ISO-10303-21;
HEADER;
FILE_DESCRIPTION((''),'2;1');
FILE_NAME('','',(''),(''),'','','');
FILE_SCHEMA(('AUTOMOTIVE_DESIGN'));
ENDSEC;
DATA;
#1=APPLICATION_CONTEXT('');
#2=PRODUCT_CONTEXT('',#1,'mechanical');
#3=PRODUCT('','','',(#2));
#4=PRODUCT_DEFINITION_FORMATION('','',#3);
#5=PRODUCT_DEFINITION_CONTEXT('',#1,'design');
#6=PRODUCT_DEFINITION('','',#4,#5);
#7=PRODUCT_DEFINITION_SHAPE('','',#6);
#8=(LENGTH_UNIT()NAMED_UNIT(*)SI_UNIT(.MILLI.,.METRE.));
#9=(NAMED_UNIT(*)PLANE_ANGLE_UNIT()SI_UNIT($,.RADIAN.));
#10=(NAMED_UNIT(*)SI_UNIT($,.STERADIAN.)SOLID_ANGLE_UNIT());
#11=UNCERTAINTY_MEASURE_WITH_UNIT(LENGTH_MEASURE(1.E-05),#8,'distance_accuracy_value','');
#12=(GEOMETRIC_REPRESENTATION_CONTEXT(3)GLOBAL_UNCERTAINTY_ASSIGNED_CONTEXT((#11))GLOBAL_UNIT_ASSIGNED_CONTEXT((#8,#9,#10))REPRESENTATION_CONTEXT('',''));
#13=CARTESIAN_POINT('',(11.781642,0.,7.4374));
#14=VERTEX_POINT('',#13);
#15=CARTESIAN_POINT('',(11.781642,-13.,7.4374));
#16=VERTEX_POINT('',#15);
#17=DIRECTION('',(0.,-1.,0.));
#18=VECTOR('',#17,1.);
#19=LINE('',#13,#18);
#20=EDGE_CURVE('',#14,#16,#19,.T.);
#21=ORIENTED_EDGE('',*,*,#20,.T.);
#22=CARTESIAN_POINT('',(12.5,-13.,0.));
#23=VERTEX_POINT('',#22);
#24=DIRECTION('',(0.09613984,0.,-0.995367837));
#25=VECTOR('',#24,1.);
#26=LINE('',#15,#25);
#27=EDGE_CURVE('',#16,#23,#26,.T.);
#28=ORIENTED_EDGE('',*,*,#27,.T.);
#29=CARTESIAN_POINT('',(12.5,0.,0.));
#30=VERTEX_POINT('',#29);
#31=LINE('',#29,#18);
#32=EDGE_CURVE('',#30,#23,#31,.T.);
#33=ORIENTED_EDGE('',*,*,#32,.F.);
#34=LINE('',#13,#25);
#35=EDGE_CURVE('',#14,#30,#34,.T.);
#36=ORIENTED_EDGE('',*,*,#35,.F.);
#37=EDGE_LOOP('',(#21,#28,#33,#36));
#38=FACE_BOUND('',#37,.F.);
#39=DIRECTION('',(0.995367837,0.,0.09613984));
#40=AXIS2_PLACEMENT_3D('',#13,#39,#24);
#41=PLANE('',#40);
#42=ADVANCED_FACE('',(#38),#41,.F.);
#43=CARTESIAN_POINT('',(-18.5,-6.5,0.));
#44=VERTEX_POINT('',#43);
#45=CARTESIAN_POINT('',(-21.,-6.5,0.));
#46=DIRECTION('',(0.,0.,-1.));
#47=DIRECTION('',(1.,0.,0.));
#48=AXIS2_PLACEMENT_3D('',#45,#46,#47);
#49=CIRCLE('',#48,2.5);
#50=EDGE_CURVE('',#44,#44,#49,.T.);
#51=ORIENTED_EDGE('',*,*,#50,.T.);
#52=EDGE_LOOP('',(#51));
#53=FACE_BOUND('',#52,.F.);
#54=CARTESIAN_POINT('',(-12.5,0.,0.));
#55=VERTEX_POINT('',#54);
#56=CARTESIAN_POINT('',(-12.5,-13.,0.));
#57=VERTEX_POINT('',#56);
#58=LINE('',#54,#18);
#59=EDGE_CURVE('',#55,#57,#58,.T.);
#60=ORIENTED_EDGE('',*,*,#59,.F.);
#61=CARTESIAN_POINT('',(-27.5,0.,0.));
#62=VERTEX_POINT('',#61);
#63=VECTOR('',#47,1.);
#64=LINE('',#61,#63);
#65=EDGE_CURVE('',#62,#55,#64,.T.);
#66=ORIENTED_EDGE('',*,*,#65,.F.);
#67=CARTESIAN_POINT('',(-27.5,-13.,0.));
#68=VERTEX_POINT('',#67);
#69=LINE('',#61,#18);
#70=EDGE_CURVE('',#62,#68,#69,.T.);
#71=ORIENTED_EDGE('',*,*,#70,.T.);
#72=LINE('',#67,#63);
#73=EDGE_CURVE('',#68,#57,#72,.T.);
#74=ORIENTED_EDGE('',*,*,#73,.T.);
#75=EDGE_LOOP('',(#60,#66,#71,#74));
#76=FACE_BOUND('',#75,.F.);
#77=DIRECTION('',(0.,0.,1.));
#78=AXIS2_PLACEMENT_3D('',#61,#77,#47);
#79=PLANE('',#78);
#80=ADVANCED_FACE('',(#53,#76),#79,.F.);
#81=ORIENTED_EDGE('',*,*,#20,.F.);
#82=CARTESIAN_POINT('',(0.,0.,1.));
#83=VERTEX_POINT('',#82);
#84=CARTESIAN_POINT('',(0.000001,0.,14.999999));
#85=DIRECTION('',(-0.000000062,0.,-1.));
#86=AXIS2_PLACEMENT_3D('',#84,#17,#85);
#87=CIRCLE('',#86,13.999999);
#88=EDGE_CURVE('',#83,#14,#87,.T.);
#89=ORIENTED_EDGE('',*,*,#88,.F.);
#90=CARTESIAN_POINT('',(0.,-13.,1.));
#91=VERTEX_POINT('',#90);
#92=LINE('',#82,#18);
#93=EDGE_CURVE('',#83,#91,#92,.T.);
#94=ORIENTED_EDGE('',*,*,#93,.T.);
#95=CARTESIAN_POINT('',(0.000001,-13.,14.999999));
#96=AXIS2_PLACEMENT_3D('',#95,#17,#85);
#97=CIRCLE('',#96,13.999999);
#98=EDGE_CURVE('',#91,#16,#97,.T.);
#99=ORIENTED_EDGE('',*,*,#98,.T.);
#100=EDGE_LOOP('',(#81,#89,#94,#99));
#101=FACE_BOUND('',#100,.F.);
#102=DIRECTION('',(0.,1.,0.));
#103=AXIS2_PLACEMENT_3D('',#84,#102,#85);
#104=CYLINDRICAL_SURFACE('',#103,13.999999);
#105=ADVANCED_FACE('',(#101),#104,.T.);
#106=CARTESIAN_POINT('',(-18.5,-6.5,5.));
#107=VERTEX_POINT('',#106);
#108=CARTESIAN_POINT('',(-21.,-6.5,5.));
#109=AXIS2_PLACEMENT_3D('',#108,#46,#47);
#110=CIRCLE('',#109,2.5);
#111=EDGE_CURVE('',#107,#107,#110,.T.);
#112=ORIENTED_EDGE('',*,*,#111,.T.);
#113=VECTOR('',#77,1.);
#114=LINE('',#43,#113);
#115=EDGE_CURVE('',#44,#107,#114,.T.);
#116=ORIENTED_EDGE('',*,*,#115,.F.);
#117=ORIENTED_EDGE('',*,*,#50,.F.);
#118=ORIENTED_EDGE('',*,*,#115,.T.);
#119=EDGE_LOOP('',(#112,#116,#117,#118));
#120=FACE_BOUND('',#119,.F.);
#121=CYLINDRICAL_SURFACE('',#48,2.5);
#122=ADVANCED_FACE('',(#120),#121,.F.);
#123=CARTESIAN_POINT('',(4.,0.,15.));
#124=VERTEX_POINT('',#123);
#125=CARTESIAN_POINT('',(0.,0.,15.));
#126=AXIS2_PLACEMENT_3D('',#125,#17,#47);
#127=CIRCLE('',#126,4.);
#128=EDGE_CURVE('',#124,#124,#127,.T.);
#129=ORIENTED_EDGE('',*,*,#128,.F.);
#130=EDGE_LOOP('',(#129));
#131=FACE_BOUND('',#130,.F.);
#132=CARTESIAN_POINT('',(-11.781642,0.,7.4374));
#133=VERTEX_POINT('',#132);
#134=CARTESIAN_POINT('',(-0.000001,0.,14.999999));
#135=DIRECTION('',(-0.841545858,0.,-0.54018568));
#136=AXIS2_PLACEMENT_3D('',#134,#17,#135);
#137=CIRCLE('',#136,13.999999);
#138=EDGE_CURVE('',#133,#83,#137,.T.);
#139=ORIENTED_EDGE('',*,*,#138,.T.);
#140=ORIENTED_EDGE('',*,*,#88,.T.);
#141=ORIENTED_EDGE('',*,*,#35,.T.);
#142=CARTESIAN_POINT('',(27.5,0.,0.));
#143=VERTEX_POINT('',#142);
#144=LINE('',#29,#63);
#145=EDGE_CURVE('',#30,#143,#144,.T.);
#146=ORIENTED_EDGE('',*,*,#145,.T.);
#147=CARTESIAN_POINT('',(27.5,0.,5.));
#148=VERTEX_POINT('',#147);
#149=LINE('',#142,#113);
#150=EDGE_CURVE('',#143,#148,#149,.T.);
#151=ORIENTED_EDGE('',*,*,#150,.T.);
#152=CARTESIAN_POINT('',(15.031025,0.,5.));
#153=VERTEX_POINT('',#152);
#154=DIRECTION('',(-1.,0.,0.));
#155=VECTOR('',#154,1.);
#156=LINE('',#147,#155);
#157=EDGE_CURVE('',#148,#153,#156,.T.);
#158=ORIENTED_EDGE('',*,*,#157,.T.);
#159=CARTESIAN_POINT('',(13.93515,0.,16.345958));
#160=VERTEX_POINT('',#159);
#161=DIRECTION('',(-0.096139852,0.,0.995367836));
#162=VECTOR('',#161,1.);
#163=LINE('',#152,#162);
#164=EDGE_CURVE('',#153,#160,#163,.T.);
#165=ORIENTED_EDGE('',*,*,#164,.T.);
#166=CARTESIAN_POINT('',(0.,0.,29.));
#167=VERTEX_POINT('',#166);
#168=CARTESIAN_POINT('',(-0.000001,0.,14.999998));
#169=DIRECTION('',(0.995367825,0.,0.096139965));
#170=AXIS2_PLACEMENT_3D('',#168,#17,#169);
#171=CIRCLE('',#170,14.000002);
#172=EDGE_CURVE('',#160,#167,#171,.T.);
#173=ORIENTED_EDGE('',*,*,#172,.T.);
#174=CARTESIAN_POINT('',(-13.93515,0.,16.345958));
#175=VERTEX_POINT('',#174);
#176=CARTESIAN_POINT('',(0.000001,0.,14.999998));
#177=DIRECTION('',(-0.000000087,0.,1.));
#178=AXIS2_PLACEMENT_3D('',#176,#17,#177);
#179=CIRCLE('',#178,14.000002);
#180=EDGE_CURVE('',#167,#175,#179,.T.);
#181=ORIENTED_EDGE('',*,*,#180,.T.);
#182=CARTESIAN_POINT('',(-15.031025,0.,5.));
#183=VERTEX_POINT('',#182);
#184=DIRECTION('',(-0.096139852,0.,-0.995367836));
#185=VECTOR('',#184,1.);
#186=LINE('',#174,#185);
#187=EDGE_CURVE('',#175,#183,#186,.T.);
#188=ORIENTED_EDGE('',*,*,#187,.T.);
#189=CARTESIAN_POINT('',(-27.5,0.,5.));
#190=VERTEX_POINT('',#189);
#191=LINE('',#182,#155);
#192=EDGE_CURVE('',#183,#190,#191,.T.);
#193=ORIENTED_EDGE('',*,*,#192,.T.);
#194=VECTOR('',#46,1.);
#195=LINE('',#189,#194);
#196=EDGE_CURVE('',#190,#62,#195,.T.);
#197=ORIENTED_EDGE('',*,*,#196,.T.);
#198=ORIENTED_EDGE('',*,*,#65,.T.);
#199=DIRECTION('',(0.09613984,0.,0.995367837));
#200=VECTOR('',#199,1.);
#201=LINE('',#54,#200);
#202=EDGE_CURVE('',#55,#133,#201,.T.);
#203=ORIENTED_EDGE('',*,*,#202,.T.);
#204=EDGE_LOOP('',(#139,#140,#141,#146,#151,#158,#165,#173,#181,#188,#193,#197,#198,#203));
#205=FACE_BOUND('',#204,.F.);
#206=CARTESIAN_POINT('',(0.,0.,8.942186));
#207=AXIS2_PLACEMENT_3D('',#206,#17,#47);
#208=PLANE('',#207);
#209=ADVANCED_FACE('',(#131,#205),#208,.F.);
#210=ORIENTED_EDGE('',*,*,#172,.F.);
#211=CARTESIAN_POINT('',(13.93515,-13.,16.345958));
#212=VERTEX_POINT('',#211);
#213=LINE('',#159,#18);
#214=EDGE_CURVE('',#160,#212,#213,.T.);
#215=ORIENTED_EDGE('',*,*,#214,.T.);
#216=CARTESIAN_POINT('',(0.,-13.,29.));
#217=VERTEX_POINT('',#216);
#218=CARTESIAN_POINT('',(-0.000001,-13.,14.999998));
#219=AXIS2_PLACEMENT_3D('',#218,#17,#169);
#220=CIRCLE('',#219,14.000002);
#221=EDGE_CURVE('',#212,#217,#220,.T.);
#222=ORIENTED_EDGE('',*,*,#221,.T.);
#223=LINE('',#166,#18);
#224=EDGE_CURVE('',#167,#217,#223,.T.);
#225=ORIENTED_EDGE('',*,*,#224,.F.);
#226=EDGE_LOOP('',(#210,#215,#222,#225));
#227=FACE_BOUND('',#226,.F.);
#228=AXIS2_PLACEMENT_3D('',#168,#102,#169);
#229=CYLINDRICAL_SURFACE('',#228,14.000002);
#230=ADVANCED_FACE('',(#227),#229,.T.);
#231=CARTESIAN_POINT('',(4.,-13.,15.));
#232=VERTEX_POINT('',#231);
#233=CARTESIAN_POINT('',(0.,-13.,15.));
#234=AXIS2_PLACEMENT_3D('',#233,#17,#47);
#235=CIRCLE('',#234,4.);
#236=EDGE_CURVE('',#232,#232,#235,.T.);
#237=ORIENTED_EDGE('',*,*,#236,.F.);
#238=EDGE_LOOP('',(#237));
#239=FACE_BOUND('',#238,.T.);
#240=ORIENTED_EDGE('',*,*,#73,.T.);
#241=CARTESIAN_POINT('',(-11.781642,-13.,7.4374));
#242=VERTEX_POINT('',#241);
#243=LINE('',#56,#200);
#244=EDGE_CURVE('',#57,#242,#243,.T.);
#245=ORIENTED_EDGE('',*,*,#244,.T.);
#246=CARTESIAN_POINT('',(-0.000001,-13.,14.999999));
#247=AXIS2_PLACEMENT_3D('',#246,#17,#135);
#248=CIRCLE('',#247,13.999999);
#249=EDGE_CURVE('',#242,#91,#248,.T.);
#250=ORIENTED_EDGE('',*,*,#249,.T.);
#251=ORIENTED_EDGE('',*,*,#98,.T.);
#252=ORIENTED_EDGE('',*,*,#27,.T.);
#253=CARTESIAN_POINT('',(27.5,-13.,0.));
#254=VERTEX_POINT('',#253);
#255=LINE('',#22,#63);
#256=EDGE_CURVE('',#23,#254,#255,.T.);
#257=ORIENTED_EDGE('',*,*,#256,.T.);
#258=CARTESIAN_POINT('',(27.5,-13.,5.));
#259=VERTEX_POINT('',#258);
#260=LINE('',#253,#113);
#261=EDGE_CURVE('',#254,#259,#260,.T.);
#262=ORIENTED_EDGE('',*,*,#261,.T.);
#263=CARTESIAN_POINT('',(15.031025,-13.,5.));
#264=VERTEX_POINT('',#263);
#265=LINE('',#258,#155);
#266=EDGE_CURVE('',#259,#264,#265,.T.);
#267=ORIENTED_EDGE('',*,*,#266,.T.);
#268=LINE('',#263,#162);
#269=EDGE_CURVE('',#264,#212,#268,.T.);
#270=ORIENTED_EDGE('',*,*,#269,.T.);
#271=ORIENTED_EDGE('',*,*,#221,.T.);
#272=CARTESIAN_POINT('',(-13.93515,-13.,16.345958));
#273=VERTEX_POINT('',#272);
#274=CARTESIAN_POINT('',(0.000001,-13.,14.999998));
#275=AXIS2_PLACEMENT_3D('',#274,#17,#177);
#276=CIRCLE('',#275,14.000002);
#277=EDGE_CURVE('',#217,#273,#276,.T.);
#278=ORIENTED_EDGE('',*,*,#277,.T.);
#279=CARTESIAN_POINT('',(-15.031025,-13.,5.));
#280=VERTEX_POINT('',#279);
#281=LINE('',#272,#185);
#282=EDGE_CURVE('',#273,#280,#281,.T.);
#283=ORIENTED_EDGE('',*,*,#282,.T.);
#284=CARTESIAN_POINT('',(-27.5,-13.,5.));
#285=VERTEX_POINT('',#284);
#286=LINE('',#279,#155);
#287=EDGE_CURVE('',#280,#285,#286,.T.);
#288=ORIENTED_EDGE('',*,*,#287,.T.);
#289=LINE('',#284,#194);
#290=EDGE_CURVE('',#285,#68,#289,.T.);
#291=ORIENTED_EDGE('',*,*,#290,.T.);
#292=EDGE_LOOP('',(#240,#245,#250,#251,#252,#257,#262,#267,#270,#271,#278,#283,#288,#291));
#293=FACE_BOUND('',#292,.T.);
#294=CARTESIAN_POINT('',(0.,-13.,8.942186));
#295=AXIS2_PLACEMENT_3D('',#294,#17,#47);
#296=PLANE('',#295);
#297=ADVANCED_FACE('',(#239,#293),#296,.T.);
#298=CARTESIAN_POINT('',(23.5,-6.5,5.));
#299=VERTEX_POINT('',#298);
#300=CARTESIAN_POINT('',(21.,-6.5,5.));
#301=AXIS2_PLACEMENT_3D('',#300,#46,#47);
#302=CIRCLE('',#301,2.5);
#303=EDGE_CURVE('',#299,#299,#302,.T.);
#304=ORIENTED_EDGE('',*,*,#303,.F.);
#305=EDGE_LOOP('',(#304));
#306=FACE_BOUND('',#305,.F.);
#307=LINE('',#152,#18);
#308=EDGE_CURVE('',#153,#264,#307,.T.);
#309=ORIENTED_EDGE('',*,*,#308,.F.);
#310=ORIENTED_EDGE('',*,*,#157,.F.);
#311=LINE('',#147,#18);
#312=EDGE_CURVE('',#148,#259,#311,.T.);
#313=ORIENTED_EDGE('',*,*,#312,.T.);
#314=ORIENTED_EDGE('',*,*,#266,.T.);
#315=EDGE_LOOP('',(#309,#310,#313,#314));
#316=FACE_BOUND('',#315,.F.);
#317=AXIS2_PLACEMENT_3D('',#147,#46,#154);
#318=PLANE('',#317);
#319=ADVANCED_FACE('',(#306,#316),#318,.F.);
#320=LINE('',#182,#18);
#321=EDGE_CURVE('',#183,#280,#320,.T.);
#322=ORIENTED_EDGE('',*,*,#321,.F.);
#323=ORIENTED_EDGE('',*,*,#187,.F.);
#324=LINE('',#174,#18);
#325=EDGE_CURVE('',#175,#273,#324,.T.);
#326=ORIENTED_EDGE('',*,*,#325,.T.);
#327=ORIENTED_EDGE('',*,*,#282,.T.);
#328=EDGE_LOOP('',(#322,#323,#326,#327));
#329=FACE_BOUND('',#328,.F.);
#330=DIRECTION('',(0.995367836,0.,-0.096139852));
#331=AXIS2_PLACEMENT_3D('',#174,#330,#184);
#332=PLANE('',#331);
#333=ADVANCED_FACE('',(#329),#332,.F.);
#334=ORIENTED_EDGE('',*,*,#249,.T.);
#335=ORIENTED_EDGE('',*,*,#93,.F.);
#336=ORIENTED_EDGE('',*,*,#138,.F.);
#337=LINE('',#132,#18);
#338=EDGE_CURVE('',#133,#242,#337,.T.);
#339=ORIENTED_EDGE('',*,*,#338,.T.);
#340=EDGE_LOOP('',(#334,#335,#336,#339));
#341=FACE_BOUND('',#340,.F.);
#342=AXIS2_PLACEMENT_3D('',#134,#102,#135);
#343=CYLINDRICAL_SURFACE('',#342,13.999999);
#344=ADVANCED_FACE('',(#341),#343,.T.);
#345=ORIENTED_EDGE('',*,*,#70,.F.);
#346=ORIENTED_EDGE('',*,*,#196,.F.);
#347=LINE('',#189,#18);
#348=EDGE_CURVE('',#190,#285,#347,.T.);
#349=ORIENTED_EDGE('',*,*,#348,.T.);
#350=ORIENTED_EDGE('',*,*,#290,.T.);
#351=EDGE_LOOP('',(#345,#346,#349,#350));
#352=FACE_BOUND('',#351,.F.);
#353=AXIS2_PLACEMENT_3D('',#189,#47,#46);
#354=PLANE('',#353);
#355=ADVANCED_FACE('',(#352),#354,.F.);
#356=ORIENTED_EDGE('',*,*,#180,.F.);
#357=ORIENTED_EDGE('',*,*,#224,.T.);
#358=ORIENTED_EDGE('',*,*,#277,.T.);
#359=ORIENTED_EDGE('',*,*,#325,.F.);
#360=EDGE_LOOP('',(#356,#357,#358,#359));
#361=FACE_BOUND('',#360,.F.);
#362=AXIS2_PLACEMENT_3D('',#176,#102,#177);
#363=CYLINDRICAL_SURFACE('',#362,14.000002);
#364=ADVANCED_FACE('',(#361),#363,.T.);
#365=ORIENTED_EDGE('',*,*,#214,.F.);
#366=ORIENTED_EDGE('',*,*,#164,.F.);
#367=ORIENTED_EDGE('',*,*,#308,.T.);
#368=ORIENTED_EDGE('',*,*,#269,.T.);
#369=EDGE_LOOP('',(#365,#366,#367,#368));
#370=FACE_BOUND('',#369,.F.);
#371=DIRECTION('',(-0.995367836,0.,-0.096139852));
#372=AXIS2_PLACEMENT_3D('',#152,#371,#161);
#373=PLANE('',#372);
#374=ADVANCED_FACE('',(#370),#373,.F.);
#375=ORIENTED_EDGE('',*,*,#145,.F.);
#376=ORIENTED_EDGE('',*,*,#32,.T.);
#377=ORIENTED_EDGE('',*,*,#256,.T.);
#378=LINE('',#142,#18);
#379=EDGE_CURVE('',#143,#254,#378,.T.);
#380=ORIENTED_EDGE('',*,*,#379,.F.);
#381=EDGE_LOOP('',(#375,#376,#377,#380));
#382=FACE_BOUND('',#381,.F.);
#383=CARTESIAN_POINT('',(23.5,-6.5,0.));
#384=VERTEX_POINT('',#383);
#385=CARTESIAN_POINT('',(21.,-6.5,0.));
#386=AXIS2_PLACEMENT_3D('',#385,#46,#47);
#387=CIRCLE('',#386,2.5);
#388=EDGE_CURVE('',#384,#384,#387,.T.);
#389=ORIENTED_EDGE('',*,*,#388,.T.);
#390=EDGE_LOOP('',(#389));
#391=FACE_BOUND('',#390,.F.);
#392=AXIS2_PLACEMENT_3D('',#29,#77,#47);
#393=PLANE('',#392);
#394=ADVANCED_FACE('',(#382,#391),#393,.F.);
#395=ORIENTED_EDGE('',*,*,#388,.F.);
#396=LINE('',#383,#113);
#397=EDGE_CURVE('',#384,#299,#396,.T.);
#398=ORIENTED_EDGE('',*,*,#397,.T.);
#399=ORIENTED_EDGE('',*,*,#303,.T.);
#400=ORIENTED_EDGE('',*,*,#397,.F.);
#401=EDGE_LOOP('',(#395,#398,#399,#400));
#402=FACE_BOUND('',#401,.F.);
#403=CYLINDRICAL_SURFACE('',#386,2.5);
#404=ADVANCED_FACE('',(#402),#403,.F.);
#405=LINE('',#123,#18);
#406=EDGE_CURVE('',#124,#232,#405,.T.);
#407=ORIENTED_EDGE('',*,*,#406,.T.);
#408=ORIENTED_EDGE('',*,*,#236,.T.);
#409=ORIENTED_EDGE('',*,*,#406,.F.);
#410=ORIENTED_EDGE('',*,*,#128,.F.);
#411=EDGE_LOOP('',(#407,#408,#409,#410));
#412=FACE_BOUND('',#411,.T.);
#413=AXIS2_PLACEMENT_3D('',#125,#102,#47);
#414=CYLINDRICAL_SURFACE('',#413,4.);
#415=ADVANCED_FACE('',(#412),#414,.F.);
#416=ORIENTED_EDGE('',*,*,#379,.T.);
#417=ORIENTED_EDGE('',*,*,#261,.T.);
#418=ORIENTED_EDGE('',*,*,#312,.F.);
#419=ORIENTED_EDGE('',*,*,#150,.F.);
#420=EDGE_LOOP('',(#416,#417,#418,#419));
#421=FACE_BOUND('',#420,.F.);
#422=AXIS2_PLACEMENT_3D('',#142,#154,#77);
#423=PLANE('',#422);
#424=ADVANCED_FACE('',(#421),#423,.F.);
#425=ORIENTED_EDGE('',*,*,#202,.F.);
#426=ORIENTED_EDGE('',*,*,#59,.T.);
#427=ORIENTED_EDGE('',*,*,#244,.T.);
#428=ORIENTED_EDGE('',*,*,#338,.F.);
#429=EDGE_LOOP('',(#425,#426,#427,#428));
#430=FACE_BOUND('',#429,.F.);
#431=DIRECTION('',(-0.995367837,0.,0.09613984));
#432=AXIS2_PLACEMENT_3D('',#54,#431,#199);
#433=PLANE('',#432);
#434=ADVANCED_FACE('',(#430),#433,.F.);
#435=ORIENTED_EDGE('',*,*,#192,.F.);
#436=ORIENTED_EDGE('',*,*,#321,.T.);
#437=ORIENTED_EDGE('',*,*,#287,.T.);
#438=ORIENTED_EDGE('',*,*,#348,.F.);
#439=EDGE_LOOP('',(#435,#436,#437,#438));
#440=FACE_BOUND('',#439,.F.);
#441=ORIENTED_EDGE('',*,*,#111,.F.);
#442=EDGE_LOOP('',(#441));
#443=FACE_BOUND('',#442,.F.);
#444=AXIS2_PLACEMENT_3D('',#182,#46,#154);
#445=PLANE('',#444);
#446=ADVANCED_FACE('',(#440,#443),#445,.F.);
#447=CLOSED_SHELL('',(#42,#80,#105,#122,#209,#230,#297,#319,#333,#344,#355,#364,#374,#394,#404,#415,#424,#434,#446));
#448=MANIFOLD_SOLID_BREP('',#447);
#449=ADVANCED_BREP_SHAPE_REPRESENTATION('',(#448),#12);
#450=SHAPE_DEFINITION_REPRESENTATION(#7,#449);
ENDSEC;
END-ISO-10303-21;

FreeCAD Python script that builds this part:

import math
import FreeCAD as App
import Part
import Sketcher

V = App.Vector
Q = App.Units.Quantity

doc = App.newDocument("Part")
params = doc.addObject("Spreadsheet::Sheet", "Params")
for row, (alias, value) in enumerate([
    ("sketch1_diameter", "8 mm"),
    ("sketch1_radius", "13.999999 mm"),
    ("sketch1_radius2", "14.000002 mm"),
    ("sketch1_width", "15 mm"),
    ("sketch1_height", "5 mm"),
    ("pad1_length", "13 mm"),
    ("sketch2_diameter", "5 mm"),
], start=1):
    params.set(f"A{row}", alias)
    params.set(f"B{row}", "=" + value)
    params.setAlias(f"B{row}", alias)

body = doc.addObject("PartDesign::Body", "Body")

# Sketch on XZ plane
sketch1 = body.newObject("Sketcher::SketchObject", "Sketch")
sketch1.AttachmentSupport = (doc.getObject("XZ_Plane"), [""])
sketch1.MapMode = "FlatFace"
sketch1.addGeometry([
    Part.ArcOfCircle(Part.Circle(V(-0.000001, 14.999999, 0), V(0, 0, 1), 13.999999), math.radians(-147.30372), math.radians(-89.999996)),  # 0
    Part.ArcOfCircle(Part.Circle(V(0.000001, 14.999999, 0), V(0, 0, 1), 13.999999), math.radians(-90.000004), math.radians(-32.69628)),  # 1
    Part.LineSegment(V(11.781642, 7.4374, 0), V(12.5, 0, 0)),  # 2
    Part.LineSegment(V(12.5, 0, 0), V(27.5, 0, 0)),  # 3
    Part.LineSegment(V(27.5, 0, 0), V(27.5, 5, 0)),  # 4
    Part.LineSegment(V(27.5, 5, 0), V(15.031025, 5, 0)),  # 5
    Part.LineSegment(V(15.031025, 5, 0), V(13.93515, 16.345958, 0)),  # 6
    Part.ArcOfCircle(Part.Circle(V(-0.000001, 14.999998, 0), V(0, 0, 1), 14.000002), math.radians(5.516935), math.radians(89.999995)),  # 7
    Part.ArcOfCircle(Part.Circle(V(0.000001, 14.999998, 0), V(0, 0, 1), 14.000002), math.radians(90.000005), math.radians(174.483065)),  # 8
    Part.LineSegment(V(-13.93515, 16.345958, 0), V(-15.031025, 5, 0)),  # 9
    Part.LineSegment(V(-15.031025, 5, 0), V(-27.5, 5, 0)),  # 10
    Part.LineSegment(V(-27.5, 5, 0), V(-27.5, 0, 0)),  # 11
    Part.LineSegment(V(-27.5, 0, 0), V(-12.5, 0, 0)),  # 12
    Part.LineSegment(V(-12.5, 0, 0), V(-11.781642, 7.4374, 0)),  # 13
    Part.Circle(V(0, 15, 0), V(0, 0, 1), 4),  # 14
], False)
sketch1.addConstraint([
    Sketcher.Constraint("Tangent", 0, 2, 1, 1),
    Sketcher.Constraint("Coincident", 1, 2, 2, 1),
    Sketcher.Constraint("Coincident", 2, 2, 3, 1),
    Sketcher.Constraint("Coincident", 3, 2, 4, 1),
    Sketcher.Constraint("Coincident", 4, 2, 5, 1),
    Sketcher.Constraint("Coincident", 5, 2, 6, 1),
    Sketcher.Constraint("Tangent", 6, 2, 7, 1),
    Sketcher.Constraint("Tangent", 7, 2, 8, 1),
    Sketcher.Constraint("Tangent", 8, 2, 9, 1),
    Sketcher.Constraint("Coincident", 9, 2, 10, 1),
    Sketcher.Constraint("Coincident", 10, 2, 11, 1),
    Sketcher.Constraint("Coincident", 11, 2, 12, 1),
    Sketcher.Constraint("Coincident", 12, 2, 13, 1),
    Sketcher.Constraint("Coincident", 13, 2, 0, 1),
    Sketcher.Constraint("Horizontal", 3),
    Sketcher.Constraint("Vertical", 4),
    Sketcher.Constraint("Horizontal", 5),
    Sketcher.Constraint("Horizontal", 10),
    Sketcher.Constraint("Vertical", 11),
    Sketcher.Constraint("Horizontal", 12),
    Sketcher.Constraint("Coincident", 7, 3, 0, 3),
    Sketcher.Constraint("Coincident", 14, 3, 0, 3),
    Sketcher.Constraint("Equal", 0, 1),
    Sketcher.Constraint("Equal", 7, 8),
    Sketcher.Constraint("Symmetric", 3, 2, 11, 2, -1, 1),
    Sketcher.Constraint("Symmetric", 6, 2, 8, 2, -2),
    Sketcher.Constraint("Symmetric", 2, 2, 12, 2, -2),
    Sketcher.Constraint("PointOnObject", 0, 2, -2),
    Sketcher.Constraint("PointOnObject", 7, 2, -2),
    Sketcher.Constraint("Parallel", 2, 6),
    Sketcher.Constraint("Parallel", 9, 13),
    Sketcher.Constraint("Horizontal", 5, 2, 9, 2),
    Sketcher.Constraint("Diameter", 14, Q("8 mm")),
    Sketcher.Constraint("Radius", 0, Q("13.999999 mm")),
    Sketcher.Constraint("Radius", 7, Q("14.000002 mm")),
    Sketcher.Constraint("DistanceX", 3, 1, 3, 2, Q("15 mm")),
    Sketcher.Constraint("DistanceY", 4, 1, 4, 2, Q("5 mm")),
    Sketcher.Constraint("DistanceY", -1, 1, 0, 3, Q("14.999999 mm")),
    Sketcher.Constraint("DistanceX", -1, 1, 2, 2, Q("12.5 mm")),
    Sketcher.Constraint("DistanceY", -1, 1, 1, 2, Q("7.4374 mm")),
])
sketch1.setExpression("Constraints[32]", "Params.sketch1_diameter")
sketch1.setExpression("Constraints[33]", "Params.sketch1_radius")
sketch1.setExpression("Constraints[34]", "Params.sketch1_radius2")
sketch1.setExpression("Constraints[35]", "Params.sketch1_width")
sketch1.setExpression("Constraints[36]", "Params.sketch1_height")
pad1 = body.newObject("PartDesign::Pad", "Pad")
pad1.Profile = sketch1
pad1.setExpression("Length", "Params.pad1_length")

# Sketch on XY plane
sketch2 = body.newObject("Sketcher::SketchObject", "Sketch001")
sketch2.AttachmentSupport = (doc.getObject("XY_Plane"), [""])
sketch2.MapMode = "FlatFace"
sketch2.addGeometry([
    Part.Circle(V(-21, -6.5, 0), V(0, 0, 1), 2.5),
    Part.Circle(V(21, -6.5, 0), V(0, 0, 1), 2.5),
], False)
sketch2.addConstraint([
    Sketcher.Constraint("Equal", 0, 1),
    Sketcher.Constraint("Symmetric", 0, 3, 1, 3, -2),
    Sketcher.Constraint("Diameter", 0, Q("5 mm")),
    Sketcher.Constraint("DistanceX", 0, 3, -1, 1, Q("21 mm")),
    Sketcher.Constraint("DistanceY", 0, 3, -1, 1, Q("6.5 mm")),
])
sketch2.setExpression("Constraints[2]", "Params.sketch2_diameter")
pocket1 = body.newObject("PartDesign::Pocket", "Pocket")
pocket1.Profile = sketch2
pocket1.Type = "ThroughAll"
pocket1.Reversed = True

doc.recompute()
